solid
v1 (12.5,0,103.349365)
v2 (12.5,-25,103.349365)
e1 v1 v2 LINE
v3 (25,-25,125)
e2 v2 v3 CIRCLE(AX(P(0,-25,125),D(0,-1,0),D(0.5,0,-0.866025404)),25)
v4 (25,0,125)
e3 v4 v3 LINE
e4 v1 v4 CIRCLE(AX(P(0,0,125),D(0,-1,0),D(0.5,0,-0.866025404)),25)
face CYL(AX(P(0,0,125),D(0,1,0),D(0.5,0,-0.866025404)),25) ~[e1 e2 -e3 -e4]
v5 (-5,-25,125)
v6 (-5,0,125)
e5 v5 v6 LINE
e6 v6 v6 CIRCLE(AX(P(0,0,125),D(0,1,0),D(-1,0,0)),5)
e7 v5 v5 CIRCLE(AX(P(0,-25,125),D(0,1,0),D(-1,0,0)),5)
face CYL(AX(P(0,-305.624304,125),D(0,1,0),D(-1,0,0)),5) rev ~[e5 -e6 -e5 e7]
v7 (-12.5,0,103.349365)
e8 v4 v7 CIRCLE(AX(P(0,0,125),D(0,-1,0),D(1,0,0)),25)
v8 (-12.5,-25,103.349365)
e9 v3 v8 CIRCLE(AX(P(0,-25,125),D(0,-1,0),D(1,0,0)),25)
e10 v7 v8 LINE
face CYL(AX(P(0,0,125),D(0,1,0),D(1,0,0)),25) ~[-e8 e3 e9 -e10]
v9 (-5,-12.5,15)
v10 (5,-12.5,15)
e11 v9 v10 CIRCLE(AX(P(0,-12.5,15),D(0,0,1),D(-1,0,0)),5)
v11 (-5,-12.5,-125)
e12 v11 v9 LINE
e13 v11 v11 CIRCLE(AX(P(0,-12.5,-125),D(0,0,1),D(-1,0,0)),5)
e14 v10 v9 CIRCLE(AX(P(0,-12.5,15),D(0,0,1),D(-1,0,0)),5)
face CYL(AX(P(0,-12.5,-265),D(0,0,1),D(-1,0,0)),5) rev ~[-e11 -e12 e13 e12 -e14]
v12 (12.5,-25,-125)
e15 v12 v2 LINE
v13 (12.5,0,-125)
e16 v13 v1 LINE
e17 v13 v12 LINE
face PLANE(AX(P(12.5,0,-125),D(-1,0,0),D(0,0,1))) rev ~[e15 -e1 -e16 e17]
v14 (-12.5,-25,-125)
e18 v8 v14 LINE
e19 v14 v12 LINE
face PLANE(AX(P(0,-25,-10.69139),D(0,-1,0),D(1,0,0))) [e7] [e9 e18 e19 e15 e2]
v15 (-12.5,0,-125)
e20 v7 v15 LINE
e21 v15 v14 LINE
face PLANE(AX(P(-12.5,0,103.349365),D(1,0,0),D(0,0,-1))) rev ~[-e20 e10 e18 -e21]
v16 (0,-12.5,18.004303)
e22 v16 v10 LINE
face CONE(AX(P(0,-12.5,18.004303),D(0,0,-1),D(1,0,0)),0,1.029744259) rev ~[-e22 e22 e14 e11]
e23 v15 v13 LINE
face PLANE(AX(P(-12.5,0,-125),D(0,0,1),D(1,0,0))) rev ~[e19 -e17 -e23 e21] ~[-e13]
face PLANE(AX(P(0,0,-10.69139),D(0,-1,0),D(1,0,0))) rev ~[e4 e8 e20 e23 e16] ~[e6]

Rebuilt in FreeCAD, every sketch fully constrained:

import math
import FreeCAD as App
import Part
import Sketcher

V = App.Vector
Q = App.Units.Quantity

doc = App.newDocument("Part")
body = doc.addObject("PartDesign::Body", "Body")

# Sketch on XZ plane
sketch1 = body.newObject("Sketcher::SketchObject", "Sketch")
sketch1.AttachmentSupport = (doc.getObject("XZ_Plane"), [""])
sketch1.MapMode = "FlatFace"
sketch1.addGeometry([
    Part.LineSegment(V(-12, 103, 0), V(-12, -125, 0)),
    Part.LineSegment(V(-12, -125, 0), V(12, -125, 0)),
    Part.LineSegment(V(12, -125, 0), V(12, 103, 0)),
    Part.ArcOfCircle(Part.Circle(V(0, 125, 0), V(0, 0, 1), 25), math.radians(-120), math.radians(-60)),
], False)
sketch1.addConstraint([
    Sketcher.Constraint("Coincident", 0, 2, 1, 1),
    Sketcher.Constraint("Coincident", 1, 2, 2, 1),
    Sketcher.Constraint("Coincident", 2, 2, 3, 2),
    Sketcher.Constraint("Coincident", 3, 1, 0, 1),
    Sketcher.Constraint("Vertical", 0),
    Sketcher.Constraint("Horizontal", 1),
    Sketcher.Constraint("Vertical", 2),
    Sketcher.Constraint("Symmetric", 2, 2, 3, 1, -2),
    Sketcher.Constraint("Radius", 3, Q("25 mm")),
    Sketcher.Constraint("DistanceX", 1, 1, 1, 2, Q("25 mm")),
    Sketcher.Constraint("DistanceY", -1, 1, 3, 3, Q("125 mm")),
    Sketcher.Constraint("DistanceY", 0, 2, -1, 1, Q("125 mm")),
])
pad1 = body.newObject("PartDesign::Pad", "Pad")
pad1.Profile = sketch1
pad1.Length = 25

# Sketch on XZ plane
sketch2 = body.newObject("Sketcher::SketchObject", "Sketch001")
sketch2.AttachmentSupport = (doc.getObject("XZ_Plane"), [""])
sketch2.MapMode = "FlatFace"
sketch2.addGeometry([
    Part.LineSegment(V(-12, 103, 0), V(-12, -125, 0)),  # 0
    Part.LineSegment(V(-12, -125, 0), V(12, -125, 0)),  # 1
    Part.LineSegment(V(12, -125, 0), V(12, 103, 0)),  # 2
    Part.ArcOfCircle(Part.Circle(V(0, 125, 0), V(0, 0, 1), 25), math.radians(-60), math.radians(0)),  # 3
    Part.ArcOfCircle(Part.Circle(V(0, 125, 0), V(0, 0, 1), 25), math.radians(0), math.radians(240)),  # 4
], False)
sketch2.addConstraint([
    Sketcher.Constraint("Coincident", 0, 2, 1, 1),
    Sketcher.Constraint("Coincident", 1, 2, 2, 1),
    Sketcher.Constraint("Coincident", 2, 2, 3, 1),
    Sketcher.Constraint("Tangent", 3, 2, 4, 1),
    Sketcher.Constraint("Coincident", 4, 2, 0, 1),
    Sketcher.Constraint("Vertical", 0),
    Sketcher.Constraint("Horizontal", 1),
    Sketcher.Constraint("Vertical", 2),
    Sketcher.Constraint("Equal", 3, 4),
    Sketcher.Constraint("Symmetric", 2, 2, 4, 2, -2),
    Sketcher.Constraint("Horizontal", 4, 3, 3, 2),
    Sketcher.Constraint("Radius", 3, Q("25 mm")),
    Sketcher.Constraint("DistanceX", 1, 1, 1, 2, Q("25 mm")),
    Sketcher.Constraint("DistanceY", -1, 1, 3, 3, Q("125 mm")),
    Sketcher.Constraint("DistanceY", 0, 2, -1, 1, Q("125 mm")),
])
pad2 = body.newObject("PartDesign::Pad", "Pad001")
pad2.Profile = sketch2
pad2.Length = 25

# Sketch on XY plane
sketch3 = body.newObject("Sketcher::SketchObject", "Sketch002")
sketch3.AttachmentSupport = (doc.getObject("XY_Plane"), [""])
sketch3.MapMode = "FlatFace"
sketch3.AttachmentOffset = App.Placement(V(0, 0, -125), App.Rotation())
sketch3.addGeometry(Part.Circle(V(0, -12, 0), V(0, 0, 1), 5), False)
sketch3.addConstraint([
    Sketcher.Constraint("PointOnObject", 0, 3, -2),
    Sketcher.Constraint("Diameter", 0, Q("10 mm")),
    Sketcher.Constraint("DistanceY", 0, 3, -1, 1, Q("12.5 mm")),
])
doc.recompute()
hole = body.newObject("PartDesign::Hole", "Hole")
hole.Profile = sketch3
hole.ThreadType = "None"
hole.Diameter = 10
hole.DepthType = "Dimension"
hole.Depth = 140
hole.DrillPoint = "Angled"
hole.DrillPointAngle = 118
hole.Reversed = True

# Sketch on XZ plane
sketch4 = body.newObject("Sketcher::SketchObject", "Sketch003")
sketch4.AttachmentSupport = (doc.getObject("XZ_Plane"), [""])
sketch4.MapMode = "FlatFace"
sketch4.AttachmentOffset = App.Placement(V(0, 0, 25), App.Rotation())
sketch4.addGeometry(Part.Circle(V(0, 125, 0), V(0, 0, 1), 5), False)
sketch4.addConstraint([
    Sketcher.Constraint("PointOnObject", 0, 3, -2),
    Sketcher.Constraint("Diameter", 0, Q("10 mm")),
    Sketcher.Constraint("DistanceY", -1, 1, 0, 3, Q("125 mm")),
])
doc.recompute()
hole2 = body.newObject("PartDesign::Hole", "Hole001")
hole2.Profile = sketch4
hole2.ThreadType = "None"
hole2.Diameter = 10
hole2.DepthType = "ThroughAll"

doc.recompute()
